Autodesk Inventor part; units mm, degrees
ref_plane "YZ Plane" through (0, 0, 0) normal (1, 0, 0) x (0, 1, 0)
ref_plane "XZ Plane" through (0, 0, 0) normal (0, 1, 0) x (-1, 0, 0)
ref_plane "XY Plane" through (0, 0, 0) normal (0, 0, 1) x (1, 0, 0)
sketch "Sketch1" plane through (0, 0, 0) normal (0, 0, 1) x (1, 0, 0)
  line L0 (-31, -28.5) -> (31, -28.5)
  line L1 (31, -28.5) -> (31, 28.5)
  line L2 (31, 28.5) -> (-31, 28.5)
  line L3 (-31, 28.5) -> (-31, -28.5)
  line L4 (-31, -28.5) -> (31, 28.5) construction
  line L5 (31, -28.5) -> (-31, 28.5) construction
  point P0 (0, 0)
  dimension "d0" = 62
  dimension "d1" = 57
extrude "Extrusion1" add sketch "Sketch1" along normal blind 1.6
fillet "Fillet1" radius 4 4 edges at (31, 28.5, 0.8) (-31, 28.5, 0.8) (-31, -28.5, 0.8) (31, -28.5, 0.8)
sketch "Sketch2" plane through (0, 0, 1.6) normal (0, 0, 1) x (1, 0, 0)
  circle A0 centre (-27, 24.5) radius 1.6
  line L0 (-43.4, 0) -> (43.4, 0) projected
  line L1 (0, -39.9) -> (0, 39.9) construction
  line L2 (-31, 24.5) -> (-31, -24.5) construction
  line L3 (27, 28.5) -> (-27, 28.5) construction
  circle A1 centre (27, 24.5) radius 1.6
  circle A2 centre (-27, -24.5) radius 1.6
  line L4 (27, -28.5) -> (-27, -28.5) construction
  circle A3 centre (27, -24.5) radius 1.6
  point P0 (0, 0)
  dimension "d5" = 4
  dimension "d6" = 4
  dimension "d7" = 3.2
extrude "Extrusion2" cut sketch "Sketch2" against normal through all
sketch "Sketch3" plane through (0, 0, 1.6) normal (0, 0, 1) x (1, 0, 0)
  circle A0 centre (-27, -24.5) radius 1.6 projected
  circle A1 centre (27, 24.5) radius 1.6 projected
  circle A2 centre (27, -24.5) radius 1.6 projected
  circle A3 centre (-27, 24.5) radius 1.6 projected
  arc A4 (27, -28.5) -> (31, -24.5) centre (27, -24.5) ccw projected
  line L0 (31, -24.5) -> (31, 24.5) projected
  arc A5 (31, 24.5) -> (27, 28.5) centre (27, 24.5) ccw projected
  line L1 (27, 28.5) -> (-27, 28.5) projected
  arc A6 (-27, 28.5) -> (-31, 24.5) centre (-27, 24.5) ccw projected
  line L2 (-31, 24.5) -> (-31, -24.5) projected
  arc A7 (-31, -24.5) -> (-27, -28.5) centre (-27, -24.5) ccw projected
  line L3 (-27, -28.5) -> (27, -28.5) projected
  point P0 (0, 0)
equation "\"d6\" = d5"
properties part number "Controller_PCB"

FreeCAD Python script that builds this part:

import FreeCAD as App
import Part
import Sketcher

V = App.Vector
Q = App.Units.Quantity


def edges_at(feature, points):
    """Names of the edges that pass closest to the given points."""
    edges = feature.Shape.Edges
    near = lambda p: min(range(len(edges)), key=lambda i: edges[i].distToShape(Part.Vertex(*p))[0])
    return sorted({f"Edge{near(p) + 1}" for p in points})

doc = App.newDocument("Part")
body = doc.addObject("PartDesign::Body", "Body")

# Sketch on XY plane
sketch1 = body.newObject("Sketcher::SketchObject", "Sketch")
sketch1.AttachmentSupport = (doc.getObject("XY_Plane"), [""])
sketch1.MapMode = "FlatFace"
sketch1.addGeometry(Part.LineSegment(V(-31, 28, 0), V(-31, -28, 0)), False)
sketch1.addGeometry(Part.LineSegment(V(-31, -28, 0), V(31, -28, 0)), False)
sketch1.addGeometry(Part.LineSegment(V(31, -28, 0), V(31, 28, 0)), False)
sketch1.addGeometry(Part.LineSegment(V(31, 28, 0), V(-31, 28, 0)), False)
sketch1.addConstraint(Sketcher.Constraint("Coincident", 0, 2, 1, 1))
sketch1.addConstraint(Sketcher.Constraint("Coincident", 1, 2, 2, 1))
sketch1.addConstraint(Sketcher.Constraint("Coincident", 2, 2, 3, 1))
sketch1.addConstraint(Sketcher.Constraint("Coincident", 3, 2, 0, 1))
sketch1.addConstraint(Sketcher.Constraint("Vertical", 0))
sketch1.addConstraint(Sketcher.Constraint("Horizontal", 1))
sketch1.addConstraint(Sketcher.Constraint("Vertical", 2))
sketch1.addConstraint(Sketcher.Constraint("Horizontal", 3))
sketch1.addConstraint(Sketcher.Constraint("Symmetric", 0, 2, 2, 2, -1, 1))
sketch1.addConstraint(Sketcher.Constraint("DistanceX", 1, 1, 1, 2, Q("62 mm")))
sketch1.addConstraint(Sketcher.Constraint("DistanceY", 0, 2, 0, 1, Q("57 mm")))
pad1 = body.newObject("PartDesign::Pad", "Pad")
pad1.Profile = sketch1
pad1.Length = 1.6
doc.recompute()

fillet = body.newObject("PartDesign::Fillet", "Fillet")
fillet.Base = (pad1, edges_at(pad1, [
    (31, 28.5, 0.8),
    (-31, 28.5, 0.8),
    (-31, -28.5, 0.8),
    (31, -28.5, 0.8),
]))
fillet.Radius = 4

# Sketch on XY plane
sketch2 = body.newObject("Sketcher::SketchObject", "Sketch001")
sketch2.AttachmentSupport = (doc.getObject("XY_Plane"), [""])
sketch2.MapMode = "FlatFace"
sketch2.AttachmentOffset = App.Placement(V(0, 0, 1.6), App.Rotation())
sketch2.addGeometry(Part.Circle(V(-27, 24.5, 0), V(0, 0, 1), 1.6), False)
sketch2.addGeometry(Part.Circle(V(27, 24.5, 0), V(0, 0, 1), 1.6), False)
sketch2.addGeometry(Part.Circle(V(-27, -24.5, 0), V(0, 0, 1), 1.6), False)
sketch2.addGeometry(Part.Circle(V(27, -24.5, 0), V(0, 0, 1), 1.6), False)
sketch2.addConstraint(Sketcher.Constraint("Equal", 0, 1))
sketch2.addConstraint(Sketcher.Constraint("Equal", 1, 2))
sketch2.addConstraint(Sketcher.Constraint("Equal", 2, 3))
sketch2.addConstraint(Sketcher.Constraint("Symmetric", 1, 3, 2, 3, -1, 1))
sketch2.addConstraint(Sketcher.Constraint("Symmetric", 0, 3, 3, 3, -1, 1))
sketch2.addConstraint(Sketcher.Constraint("Symmetric", 0, 3, 1, 3, -2))
sketch2.addConstraint(Sketcher.Constraint("Diameter", 0, Q("3.2 mm")))
sketch2.addConstraint(Sketcher.Constraint("DistanceX", 0, 3, -1, 1, Q("27 mm")))
sketch2.addConstraint(Sketcher.Constraint("DistanceY", 2, 3, 0, 3, Q("49 mm")))
pocket1 = body.newObject("PartDesign::Pocket", "Pocket")
pocket1.Profile = sketch2
pocket1.Type = "ThroughAll"

doc.recompute()
